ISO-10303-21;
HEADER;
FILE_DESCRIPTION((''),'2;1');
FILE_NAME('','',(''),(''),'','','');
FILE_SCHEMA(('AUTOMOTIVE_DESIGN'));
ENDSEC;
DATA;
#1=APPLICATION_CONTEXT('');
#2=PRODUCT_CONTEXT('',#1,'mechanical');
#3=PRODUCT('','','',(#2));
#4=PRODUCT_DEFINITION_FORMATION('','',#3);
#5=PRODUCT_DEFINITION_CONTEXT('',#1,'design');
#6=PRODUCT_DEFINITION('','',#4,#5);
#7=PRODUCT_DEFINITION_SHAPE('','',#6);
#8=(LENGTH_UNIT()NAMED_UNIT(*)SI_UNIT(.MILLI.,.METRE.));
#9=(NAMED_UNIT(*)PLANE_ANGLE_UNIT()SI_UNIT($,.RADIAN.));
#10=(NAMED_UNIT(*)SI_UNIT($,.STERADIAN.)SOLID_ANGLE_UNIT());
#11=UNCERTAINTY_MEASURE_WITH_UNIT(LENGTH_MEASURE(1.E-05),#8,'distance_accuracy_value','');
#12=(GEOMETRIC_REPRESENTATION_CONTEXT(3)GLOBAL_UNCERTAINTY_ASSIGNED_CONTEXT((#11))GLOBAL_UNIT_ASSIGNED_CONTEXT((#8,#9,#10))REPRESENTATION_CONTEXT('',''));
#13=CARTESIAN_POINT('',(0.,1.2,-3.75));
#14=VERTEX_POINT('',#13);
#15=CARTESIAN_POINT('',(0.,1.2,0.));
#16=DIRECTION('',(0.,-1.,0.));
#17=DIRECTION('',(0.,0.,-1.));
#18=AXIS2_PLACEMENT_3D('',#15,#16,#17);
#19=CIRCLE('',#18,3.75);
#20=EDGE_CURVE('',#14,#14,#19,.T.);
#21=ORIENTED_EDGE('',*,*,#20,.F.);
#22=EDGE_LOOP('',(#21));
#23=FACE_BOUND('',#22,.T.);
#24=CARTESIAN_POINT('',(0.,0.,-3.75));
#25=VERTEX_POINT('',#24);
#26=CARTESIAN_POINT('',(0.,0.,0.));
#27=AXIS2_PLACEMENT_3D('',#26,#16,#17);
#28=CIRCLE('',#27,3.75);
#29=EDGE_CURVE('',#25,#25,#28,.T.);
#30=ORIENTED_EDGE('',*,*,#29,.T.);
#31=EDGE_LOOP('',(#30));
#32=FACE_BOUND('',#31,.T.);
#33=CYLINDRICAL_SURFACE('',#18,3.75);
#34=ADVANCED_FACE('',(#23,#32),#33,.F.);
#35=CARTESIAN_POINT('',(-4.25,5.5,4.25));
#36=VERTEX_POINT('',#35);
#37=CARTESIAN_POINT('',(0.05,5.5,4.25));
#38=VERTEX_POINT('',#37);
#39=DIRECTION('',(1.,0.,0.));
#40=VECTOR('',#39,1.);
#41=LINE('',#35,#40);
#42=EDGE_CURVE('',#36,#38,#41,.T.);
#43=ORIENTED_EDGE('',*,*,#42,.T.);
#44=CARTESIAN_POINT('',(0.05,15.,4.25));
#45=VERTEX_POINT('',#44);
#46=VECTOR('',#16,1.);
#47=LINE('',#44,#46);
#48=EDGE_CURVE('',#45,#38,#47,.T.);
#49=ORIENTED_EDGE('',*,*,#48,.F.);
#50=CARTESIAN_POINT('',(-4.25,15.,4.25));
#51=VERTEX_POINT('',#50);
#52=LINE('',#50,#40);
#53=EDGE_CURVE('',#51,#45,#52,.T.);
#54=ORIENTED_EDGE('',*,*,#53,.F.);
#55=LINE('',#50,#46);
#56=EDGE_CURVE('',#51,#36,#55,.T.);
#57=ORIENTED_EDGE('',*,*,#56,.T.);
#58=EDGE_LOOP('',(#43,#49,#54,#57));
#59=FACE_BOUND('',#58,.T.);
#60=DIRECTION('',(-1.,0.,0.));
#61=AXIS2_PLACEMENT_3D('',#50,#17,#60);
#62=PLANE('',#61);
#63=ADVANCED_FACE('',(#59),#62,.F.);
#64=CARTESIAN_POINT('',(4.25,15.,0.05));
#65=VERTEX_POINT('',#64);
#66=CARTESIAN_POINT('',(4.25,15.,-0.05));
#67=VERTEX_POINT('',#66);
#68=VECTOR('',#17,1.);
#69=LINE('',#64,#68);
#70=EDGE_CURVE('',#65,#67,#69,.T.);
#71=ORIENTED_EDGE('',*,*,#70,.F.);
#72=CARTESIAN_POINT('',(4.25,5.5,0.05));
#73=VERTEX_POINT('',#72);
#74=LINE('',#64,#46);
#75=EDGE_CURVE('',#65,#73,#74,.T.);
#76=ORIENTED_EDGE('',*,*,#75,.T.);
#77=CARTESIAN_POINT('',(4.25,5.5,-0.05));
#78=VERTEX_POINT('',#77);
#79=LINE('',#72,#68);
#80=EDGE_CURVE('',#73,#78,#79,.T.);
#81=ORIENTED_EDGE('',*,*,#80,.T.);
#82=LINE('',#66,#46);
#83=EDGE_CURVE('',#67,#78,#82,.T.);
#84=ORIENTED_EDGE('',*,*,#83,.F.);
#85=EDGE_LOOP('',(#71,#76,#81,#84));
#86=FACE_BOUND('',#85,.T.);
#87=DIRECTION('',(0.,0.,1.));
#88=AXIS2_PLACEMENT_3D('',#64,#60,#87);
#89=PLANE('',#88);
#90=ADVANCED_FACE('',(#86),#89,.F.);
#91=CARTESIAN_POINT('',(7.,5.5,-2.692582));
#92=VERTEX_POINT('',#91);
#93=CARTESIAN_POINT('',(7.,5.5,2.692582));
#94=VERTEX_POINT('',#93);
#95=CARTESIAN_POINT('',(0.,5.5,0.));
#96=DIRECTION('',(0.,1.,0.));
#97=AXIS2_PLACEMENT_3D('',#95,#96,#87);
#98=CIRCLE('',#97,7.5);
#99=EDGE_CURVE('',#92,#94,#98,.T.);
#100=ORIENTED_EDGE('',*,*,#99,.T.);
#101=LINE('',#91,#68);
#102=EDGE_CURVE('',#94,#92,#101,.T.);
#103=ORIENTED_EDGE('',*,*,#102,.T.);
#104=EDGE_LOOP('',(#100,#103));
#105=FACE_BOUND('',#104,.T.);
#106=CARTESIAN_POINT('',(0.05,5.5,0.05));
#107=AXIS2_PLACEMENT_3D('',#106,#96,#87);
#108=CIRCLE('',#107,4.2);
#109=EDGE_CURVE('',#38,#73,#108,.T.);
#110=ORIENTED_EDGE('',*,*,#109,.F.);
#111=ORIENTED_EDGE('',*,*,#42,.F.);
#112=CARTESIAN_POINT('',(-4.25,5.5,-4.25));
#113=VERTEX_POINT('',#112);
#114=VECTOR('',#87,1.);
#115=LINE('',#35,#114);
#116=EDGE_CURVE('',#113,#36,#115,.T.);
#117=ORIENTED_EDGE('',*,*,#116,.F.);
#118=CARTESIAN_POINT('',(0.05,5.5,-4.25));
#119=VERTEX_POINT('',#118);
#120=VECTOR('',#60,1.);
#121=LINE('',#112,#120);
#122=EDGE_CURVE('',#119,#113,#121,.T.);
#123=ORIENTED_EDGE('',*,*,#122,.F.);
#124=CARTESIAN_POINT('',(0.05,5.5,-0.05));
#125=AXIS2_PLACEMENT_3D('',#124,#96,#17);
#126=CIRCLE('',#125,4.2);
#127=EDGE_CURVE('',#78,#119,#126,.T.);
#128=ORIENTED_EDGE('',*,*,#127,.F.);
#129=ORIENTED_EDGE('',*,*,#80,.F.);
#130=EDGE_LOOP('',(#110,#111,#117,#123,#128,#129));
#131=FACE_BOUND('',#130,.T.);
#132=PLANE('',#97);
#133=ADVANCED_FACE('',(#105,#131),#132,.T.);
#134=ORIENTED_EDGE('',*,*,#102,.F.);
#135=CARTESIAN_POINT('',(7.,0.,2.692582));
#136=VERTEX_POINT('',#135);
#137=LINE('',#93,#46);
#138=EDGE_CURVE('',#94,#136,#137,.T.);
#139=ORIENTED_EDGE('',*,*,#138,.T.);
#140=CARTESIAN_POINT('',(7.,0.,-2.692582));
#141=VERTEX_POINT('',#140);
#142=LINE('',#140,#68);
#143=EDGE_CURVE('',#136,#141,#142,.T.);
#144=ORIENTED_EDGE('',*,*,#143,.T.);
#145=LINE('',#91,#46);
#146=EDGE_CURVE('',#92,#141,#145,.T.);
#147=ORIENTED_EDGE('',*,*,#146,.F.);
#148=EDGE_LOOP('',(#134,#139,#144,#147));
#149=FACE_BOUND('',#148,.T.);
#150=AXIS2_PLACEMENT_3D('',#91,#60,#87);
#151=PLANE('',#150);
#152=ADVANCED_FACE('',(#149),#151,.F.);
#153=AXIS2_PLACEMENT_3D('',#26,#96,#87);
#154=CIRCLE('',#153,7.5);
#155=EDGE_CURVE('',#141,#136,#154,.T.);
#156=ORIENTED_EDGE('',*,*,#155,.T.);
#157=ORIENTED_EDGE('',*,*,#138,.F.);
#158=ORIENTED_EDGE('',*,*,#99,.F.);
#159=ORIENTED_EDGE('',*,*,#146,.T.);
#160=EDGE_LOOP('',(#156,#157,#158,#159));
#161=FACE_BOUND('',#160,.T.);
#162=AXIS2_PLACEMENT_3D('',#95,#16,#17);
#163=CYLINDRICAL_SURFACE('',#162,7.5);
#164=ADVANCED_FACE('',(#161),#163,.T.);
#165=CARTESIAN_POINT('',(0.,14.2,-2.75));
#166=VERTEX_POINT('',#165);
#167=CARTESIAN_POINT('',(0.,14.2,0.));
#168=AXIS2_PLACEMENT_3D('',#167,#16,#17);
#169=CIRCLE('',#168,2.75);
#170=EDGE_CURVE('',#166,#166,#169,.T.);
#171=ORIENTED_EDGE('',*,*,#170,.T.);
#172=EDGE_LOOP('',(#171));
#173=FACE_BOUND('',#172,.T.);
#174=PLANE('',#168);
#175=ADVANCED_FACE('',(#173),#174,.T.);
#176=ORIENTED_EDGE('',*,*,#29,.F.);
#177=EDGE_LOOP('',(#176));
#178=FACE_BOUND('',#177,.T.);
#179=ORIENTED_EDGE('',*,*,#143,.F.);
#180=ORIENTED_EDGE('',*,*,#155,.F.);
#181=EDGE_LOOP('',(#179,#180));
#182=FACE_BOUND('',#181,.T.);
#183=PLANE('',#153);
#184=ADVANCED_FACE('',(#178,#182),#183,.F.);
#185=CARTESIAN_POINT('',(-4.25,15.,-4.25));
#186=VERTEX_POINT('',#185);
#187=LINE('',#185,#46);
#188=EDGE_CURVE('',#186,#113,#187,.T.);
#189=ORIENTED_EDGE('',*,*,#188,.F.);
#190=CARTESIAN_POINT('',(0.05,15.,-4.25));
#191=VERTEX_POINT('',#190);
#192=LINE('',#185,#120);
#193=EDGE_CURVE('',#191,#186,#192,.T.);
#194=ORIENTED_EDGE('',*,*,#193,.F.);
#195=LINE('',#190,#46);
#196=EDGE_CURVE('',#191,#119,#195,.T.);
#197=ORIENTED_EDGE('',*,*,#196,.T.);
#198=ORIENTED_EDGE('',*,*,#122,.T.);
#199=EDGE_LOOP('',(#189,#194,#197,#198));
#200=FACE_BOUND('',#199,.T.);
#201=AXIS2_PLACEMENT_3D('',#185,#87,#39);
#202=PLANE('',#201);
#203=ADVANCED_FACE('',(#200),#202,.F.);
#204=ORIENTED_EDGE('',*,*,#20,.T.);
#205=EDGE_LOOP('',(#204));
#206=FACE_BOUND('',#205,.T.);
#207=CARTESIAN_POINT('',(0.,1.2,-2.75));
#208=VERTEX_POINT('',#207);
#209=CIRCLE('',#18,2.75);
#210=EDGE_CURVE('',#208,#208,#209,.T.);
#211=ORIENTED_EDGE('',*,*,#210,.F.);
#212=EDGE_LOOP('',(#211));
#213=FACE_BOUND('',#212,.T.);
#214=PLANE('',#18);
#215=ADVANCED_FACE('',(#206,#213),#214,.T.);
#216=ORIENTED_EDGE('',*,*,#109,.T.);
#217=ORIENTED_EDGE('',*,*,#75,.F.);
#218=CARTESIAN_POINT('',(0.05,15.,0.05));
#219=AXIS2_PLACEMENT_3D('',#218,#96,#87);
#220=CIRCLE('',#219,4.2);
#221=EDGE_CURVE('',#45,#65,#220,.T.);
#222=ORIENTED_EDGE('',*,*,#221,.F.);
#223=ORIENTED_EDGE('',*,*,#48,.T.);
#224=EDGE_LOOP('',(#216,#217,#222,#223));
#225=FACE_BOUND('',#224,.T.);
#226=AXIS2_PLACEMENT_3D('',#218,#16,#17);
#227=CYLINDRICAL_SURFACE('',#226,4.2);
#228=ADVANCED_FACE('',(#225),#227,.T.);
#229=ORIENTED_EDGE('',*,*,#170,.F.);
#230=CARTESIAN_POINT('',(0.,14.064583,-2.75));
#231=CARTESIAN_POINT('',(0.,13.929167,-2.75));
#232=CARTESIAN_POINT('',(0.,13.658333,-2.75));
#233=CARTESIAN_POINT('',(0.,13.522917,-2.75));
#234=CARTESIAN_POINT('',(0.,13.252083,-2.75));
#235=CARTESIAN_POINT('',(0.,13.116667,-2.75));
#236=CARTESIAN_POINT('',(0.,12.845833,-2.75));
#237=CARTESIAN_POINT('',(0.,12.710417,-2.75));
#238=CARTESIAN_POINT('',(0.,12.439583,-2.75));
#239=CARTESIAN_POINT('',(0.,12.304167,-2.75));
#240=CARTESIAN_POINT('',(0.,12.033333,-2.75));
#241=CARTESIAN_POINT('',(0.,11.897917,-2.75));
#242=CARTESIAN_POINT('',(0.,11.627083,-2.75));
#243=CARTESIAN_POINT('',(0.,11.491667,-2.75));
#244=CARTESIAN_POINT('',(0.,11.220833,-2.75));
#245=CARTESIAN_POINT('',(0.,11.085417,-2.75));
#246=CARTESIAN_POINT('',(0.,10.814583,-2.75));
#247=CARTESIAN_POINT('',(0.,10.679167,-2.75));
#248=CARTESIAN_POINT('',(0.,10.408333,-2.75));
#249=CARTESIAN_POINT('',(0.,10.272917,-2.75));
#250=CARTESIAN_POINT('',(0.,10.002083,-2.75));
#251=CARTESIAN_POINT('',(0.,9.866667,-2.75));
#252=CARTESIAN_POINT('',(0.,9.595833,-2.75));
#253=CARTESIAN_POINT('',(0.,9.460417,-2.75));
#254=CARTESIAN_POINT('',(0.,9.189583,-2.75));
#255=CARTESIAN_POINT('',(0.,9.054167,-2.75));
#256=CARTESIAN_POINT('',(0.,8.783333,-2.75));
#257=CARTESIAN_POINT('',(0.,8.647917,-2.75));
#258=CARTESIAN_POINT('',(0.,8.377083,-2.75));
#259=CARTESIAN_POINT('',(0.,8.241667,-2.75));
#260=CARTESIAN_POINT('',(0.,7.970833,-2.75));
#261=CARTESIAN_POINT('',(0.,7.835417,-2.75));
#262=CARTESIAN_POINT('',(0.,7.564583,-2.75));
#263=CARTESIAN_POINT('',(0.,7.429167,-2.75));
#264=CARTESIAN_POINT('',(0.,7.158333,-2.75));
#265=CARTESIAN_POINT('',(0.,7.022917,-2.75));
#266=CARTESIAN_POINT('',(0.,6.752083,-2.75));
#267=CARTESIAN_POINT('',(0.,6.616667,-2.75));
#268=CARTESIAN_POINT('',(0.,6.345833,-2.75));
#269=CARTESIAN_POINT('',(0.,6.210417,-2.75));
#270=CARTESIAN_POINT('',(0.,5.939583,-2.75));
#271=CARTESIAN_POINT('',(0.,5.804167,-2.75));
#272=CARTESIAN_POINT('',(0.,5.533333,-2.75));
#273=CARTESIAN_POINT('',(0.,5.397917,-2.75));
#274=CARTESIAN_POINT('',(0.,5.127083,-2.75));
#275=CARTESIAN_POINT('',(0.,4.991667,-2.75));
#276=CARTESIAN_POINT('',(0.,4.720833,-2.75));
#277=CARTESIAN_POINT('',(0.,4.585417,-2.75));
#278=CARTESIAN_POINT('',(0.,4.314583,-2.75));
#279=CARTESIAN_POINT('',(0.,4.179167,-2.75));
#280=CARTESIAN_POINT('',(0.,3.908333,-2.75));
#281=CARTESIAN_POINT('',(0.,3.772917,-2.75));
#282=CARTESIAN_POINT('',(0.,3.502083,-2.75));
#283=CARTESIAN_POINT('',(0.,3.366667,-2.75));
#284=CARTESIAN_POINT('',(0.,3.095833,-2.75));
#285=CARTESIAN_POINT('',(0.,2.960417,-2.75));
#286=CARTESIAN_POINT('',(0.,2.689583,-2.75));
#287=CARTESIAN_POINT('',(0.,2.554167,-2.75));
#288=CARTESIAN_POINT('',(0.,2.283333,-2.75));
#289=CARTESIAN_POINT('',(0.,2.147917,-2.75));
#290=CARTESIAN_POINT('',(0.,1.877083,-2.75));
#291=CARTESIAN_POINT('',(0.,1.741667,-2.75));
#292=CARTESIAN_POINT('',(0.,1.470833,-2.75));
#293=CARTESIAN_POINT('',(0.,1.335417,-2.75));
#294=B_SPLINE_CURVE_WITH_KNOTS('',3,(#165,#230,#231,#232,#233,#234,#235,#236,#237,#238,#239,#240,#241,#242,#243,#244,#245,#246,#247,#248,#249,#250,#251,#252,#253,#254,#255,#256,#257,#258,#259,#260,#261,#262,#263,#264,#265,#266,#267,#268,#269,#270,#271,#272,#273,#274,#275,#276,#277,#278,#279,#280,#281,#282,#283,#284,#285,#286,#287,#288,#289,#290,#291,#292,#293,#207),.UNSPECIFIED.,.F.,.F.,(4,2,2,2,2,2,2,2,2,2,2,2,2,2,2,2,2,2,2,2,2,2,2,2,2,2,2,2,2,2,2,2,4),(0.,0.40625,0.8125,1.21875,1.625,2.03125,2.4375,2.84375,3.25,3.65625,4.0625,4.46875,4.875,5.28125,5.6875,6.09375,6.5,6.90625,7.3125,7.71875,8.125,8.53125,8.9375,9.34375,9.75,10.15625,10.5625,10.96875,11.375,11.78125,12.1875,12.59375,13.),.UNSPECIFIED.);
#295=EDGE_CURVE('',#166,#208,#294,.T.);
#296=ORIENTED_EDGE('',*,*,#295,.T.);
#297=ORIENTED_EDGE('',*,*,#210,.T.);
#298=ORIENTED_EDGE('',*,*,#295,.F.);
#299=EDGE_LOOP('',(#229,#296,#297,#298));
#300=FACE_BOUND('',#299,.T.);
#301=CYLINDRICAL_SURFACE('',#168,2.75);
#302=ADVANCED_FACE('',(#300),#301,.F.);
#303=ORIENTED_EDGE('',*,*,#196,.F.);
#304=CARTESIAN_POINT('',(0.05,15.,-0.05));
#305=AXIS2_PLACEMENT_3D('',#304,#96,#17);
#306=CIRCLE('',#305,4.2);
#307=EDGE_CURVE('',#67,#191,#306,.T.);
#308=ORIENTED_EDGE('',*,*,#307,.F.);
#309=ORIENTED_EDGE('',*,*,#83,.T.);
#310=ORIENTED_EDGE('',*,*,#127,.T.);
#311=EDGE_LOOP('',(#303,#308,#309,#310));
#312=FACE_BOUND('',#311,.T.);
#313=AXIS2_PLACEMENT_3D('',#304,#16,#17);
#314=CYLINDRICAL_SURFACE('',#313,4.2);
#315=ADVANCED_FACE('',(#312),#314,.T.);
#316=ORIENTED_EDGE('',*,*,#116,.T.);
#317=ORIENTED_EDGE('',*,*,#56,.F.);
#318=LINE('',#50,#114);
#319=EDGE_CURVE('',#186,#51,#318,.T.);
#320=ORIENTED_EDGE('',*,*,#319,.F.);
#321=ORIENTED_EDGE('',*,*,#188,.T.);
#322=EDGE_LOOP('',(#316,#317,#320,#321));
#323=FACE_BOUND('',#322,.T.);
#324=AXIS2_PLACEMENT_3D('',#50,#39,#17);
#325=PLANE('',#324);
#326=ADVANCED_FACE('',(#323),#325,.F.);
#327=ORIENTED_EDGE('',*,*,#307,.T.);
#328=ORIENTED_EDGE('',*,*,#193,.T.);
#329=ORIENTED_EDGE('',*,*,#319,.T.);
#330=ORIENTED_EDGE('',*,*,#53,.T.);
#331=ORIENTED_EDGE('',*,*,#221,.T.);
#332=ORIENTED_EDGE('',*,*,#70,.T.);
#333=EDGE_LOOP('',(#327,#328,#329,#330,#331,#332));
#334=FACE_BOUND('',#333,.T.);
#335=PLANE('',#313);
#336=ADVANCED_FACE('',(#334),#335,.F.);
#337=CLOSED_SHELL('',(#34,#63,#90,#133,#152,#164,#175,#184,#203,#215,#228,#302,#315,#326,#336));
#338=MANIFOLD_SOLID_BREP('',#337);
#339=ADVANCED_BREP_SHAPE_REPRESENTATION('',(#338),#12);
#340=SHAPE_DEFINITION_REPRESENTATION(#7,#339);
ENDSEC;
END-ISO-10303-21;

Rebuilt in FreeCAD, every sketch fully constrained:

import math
import FreeCAD as App
import Part
import Sketcher

doc = App.newDocument("Part")
body = doc.addObject("PartDesign::Body", "Body")

sketch1 = body.newObject("Sketcher::SketchObject", "Sketch")
sketch1.AttachmentSupport = (doc.getObject("XZ_Plane"), [""])
sketch1.MapMode = "FlatFace"
sketch1.addGeometry([
    Part.LineSegment(App.Vector(7, 3, 0), App.Vector(7, -3, 0)),
    Part.ArcOfCircle(Part.Circle(App.Vector(0, 0, 0), App.Vector(0, 0, 1), 8), math.radians(21), math.radians(339)),
], False)
sketch1.addConstraint([
    Sketcher.Constraint("Coincident", 0, 1, 1, 1),
    Sketcher.Constraint("Coincident", 1, 2, 0, 2),
    Sketcher.Constraint("Vertical", 0),
    Sketcher.Constraint("Coincident", 1, 3, -1, 1),
    Sketcher.Constraint("Radius", 1, 7.5),
    Sketcher.Constraint("DistanceX", -1, 1, 0, 1, 7.0),
])
pad1 = body.newObject("PartDesign::Pad", "Pad")
pad1.Profile = sketch1
pad1.Length = 5.5
pad1.Reversed = True

sketch2 = body.newObject("Sketcher::SketchObject", "Sketch001")
sketch2.AttachmentSupport = (doc.getObject("XZ_Plane"), [""])
sketch2.MapMode = "FlatFace"
sketch2.AttachmentOffset = App.Placement(App.Vector(0, 0, -5.5), App.Rotation())
sketch2.addGeometry([
    Part.LineSegment(App.Vector(-4.25, 4.25, 0), App.Vector(0.05, 4.25, 0)),
    Part.ArcOfCircle(Part.Circle(App.Vector(0.05, 0.05, 0), App.Vector(0, 0, 1), 4.2), math.radians(0), math.radians(90)),
    Part.LineSegment(App.Vector(4.25, 0.05, 0), App.Vector(4.25, -0.05, 0)),
    Part.ArcOfCircle(Part.Circle(App.Vector(0.05, -0.05, 0), App.Vector(0, 0, 1), 4.2), math.radians(-90), math.radians(0)),
    Part.LineSegment(App.Vector(0.05, -4.25, 0), App.Vector(-4.25, -4.25, 0)),
    Part.LineSegment(App.Vector(-4.25, -4.25, 0), App.Vector(-4.25, 4.25, 0)),
], False)
sketch2.addConstraint([
    Sketcher.Constraint("Tangent", 0, 2, 1, 2),
    Sketcher.Constraint("Tangent", 1, 1, 2, 1),
    Sketcher.Constraint("Tangent", 2, 2, 3, 2),
    Sketcher.Constraint("Tangent", 3, 1, 4, 1),
    Sketcher.Constraint("Coincident", 4, 2, 5, 1),
    Sketcher.Constraint("Coincident", 5, 2, 0, 1),
    Sketcher.Constraint("Horizontal", 0),
    Sketcher.Constraint("Vertical", 2),
    Sketcher.Constraint("Horizontal", 4),
    Sketcher.Constraint("Vertical", 5),
    Sketcher.Constraint("Equal", 1, 3),
    Sketcher.Constraint("Radius", 1, 4.2),
    Sketcher.Constraint("DistanceX", 0, 1, 0, 2, 4.3),
    Sketcher.Constraint("DistanceY", 2, 2, 2, 1, 0.1),
    Sketcher.Constraint("DistanceX", -1, 1, 1, 3, 0.05),
    Sketcher.Constraint("DistanceY", -1, 1, 1, 3, 0.05),
])
pad2 = body.newObject("PartDesign::Pad", "Pad001")
pad2.Profile = sketch2
pad2.Length = 9.5
pad2.Reversed = True

sketch3 = body.newObject("Sketcher::SketchObject", "Sketch002")
sketch3.AttachmentSupport = (doc.getObject("XZ_Plane"), [""])
sketch3.MapMode = "FlatFace"
sketch3.addGeometry(Part.Circle(App.Vector(0, 0, 0), App.Vector(0, 0, 1), 3.8), False)
sketch3.addConstraint([
    Sketcher.Constraint("Coincident", 0, 3, -1, 1),
    Sketcher.Constraint("Diameter", 0, 7.5),
])
pocket1 = body.newObject("PartDesign::Pocket", "Pocket")
pocket1.Profile = sketch3
pocket1.Length = 1.2

sketch4 = body.newObject("Sketcher::SketchObject", "Sketch003")
sketch4.AttachmentSupport = (doc.getObject("XZ_Plane"), [""])
sketch4.MapMode = "FlatFace"
sketch4.AttachmentOffset = App.Placement(App.Vector(0, 0, -1.2), App.Rotation())
sketch4.addGeometry(Part.Circle(App.Vector(0, 0, 0), App.Vector(0, 0, 1), 2.8), False)
sketch4.addConstraint([
    Sketcher.Constraint("Coincident", 0, 3, -1, 1),
    Sketcher.Constraint("Diameter", 0, 5.5),
])
pocket2 = body.newObject("PartDesign::Pocket", "Pocket001")
pocket2.Profile = sketch4
pocket2.Length = 13

doc.recompute()
